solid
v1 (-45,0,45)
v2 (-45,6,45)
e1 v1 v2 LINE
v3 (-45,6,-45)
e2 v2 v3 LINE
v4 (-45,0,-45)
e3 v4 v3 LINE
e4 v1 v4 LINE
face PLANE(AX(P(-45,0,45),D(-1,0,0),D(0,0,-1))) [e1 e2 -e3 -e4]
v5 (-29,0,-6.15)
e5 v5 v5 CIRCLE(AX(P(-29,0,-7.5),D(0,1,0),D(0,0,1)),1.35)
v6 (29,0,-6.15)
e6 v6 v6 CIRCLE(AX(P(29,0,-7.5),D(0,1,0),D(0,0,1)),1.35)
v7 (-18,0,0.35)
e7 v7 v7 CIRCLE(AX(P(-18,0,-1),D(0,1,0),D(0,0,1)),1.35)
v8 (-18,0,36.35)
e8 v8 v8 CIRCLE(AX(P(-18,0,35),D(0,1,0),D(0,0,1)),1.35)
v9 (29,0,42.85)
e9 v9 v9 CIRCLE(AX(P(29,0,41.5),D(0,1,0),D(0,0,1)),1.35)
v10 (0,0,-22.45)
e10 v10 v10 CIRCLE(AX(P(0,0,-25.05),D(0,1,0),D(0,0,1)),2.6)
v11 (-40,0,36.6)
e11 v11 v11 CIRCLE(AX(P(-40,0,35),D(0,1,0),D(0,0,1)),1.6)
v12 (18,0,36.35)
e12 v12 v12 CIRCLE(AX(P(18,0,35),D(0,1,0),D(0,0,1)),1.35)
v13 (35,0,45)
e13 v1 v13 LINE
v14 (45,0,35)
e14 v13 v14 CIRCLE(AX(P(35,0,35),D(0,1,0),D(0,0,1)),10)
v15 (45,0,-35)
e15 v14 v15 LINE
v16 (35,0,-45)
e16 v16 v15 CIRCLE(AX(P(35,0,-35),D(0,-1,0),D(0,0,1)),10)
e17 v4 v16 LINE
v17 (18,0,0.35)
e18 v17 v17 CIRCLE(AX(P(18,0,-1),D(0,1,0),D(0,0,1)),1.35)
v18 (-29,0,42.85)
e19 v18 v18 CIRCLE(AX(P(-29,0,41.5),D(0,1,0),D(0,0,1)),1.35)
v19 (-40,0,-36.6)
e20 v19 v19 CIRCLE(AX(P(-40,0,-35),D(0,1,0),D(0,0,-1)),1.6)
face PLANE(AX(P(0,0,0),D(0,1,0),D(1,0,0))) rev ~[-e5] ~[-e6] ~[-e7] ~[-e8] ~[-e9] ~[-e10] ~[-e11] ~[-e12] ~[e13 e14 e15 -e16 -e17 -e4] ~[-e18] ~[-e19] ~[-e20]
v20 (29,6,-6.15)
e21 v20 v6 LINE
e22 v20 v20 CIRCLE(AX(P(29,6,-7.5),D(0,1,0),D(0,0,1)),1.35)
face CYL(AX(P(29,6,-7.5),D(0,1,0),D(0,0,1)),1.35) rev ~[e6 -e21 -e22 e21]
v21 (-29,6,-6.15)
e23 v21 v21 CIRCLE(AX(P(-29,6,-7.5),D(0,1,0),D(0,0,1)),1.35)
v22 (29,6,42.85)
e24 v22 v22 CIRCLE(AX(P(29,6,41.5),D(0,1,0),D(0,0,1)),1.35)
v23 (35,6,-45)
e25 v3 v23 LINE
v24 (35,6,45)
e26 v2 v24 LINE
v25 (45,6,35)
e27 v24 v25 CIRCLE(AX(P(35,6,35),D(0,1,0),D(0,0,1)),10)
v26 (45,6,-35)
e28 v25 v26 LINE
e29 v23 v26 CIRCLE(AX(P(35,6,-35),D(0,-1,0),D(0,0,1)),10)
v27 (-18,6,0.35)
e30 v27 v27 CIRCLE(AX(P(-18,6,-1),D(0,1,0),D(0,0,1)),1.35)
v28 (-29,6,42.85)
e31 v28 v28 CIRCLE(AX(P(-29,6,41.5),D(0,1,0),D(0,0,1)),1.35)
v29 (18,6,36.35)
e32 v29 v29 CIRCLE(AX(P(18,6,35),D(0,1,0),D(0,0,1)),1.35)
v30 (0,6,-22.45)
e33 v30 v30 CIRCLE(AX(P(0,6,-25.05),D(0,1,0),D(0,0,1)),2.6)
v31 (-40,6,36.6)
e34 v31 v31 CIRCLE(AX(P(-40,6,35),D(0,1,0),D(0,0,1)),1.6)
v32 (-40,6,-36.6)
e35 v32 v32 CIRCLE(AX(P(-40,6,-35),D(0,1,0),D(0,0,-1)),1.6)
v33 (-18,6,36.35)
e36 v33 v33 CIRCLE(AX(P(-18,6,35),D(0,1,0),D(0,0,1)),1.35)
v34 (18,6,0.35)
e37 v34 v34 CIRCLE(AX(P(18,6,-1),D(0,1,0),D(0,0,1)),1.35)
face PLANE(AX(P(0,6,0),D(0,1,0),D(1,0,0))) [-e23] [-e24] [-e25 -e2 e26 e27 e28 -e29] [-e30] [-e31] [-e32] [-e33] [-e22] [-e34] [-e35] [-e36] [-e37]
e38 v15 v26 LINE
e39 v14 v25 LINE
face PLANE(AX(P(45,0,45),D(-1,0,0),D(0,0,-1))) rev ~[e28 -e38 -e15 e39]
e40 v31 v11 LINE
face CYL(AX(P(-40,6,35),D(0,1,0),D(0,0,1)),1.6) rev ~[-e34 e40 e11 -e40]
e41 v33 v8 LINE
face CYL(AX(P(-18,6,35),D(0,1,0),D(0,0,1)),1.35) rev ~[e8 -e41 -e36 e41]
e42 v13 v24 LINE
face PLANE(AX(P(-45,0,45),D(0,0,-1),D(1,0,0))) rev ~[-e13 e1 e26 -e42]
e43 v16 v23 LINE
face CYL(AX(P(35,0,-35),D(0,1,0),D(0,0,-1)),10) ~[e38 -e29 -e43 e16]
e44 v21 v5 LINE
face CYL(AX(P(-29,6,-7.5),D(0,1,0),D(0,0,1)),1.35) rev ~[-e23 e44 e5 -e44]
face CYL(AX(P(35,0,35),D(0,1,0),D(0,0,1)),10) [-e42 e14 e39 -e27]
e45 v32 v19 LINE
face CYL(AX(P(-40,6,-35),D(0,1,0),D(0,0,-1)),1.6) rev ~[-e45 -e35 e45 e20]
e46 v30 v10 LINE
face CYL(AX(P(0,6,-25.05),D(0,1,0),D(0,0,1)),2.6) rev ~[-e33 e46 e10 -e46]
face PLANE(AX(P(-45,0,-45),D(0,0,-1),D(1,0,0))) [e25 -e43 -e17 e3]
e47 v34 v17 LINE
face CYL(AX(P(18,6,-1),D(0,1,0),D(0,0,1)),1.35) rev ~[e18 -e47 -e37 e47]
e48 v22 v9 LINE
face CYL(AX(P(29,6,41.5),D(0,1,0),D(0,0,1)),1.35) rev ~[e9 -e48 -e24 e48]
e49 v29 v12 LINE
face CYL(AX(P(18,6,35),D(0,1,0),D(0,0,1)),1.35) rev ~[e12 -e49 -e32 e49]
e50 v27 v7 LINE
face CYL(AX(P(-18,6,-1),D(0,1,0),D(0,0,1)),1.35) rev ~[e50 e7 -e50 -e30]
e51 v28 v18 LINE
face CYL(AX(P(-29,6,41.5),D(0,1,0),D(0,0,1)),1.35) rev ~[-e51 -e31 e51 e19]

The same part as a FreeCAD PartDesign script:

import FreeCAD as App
import Part
import Sketcher
Q = App.Units.Quantity


def edges_at(feature, points):
    """Names of the edges that pass closest to the given points."""
    edges = feature.Shape.Edges
    near = lambda p: min(range(len(edges)), key=lambda i: edges[i].distToShape(Part.Vertex(*p))[0])
    return sorted({f"Edge{near(p) + 1}" for p in points})


def add_polygon(sketch, points):
    """Adds a closed chain of lines whose ends are joined by coincident constraints."""
    first, n = sketch.GeometryCount, len(points)
    for a, b in zip(points, points[1:] + points[:1]):
        sketch.addGeometry(Part.LineSegment(App.Vector(*a, 0), App.Vector(*b, 0)), False)
    for i in range(n):
        sketch.addConstraint(Sketcher.Constraint("Coincident", first + i, 2, first + (i + 1) % n, 1))

doc = App.newDocument("Part")
body = doc.addObject("PartDesign::Body", "Body")

# Sketch on XZ plane
sketch1 = doc.addObject("Sketcher::SketchObject", "Sketch")
body.addObject(sketch1)
sketch1.AttachmentSupport = (doc.XZ_Plane, [""])
sketch1.MapMode = "FlatFace"
add_polygon(sketch1, [(-45, -45), (-45, 45), (45, 45), (45, -45)])  # lines 0-3
sketch1.addConstraint(Sketcher.Constraint("Vertical", 0))
sketch1.addConstraint(Sketcher.Constraint("Horizontal", 1))
sketch1.addConstraint(Sketcher.Constraint("Vertical", 2))
sketch1.addConstraint(Sketcher.Constraint("Horizontal", 3))
sketch1.addConstraint(Sketcher.Constraint("Symmetric", 0, 2, 2, 2, -1, 1))
sketch1.addConstraint(Sketcher.Constraint("Equal", 3, 0))
sketch1.addConstraint(Sketcher.Constraint("DistanceX", 1, 1, 1, 2, Q("90 mm")))
pad1 = doc.addObject("PartDesign::Pad", "Pad")
body.addObject(pad1)
pad1.Profile = sketch1
pad1.Length = 6
pad1.Reversed = True

# Sketch on XZ plane
sketch2 = doc.addObject("Sketcher::SketchObject", "Sketch001")
body.addObject(sketch2)
sketch2.AttachmentSupport = (doc.XZ_Plane, [""])
sketch2.MapMode = "FlatFace"
sketch2.AttachmentOffset = App.Placement(App.Vector(0, 0, -6), App.Rotation())
sketch2.addGeometry(Part.Circle(App.Vector(-29, -7.5, 0), App.Vector(0, 0, 1), 1.4), False)
sketch2.addGeometry(Part.Circle(App.Vector(-29, 41.5, 0), App.Vector(0, 0, 1), 1.4), False)
sketch2.addGeometry(Part.Circle(App.Vector(-18, -1, 0), App.Vector(0, 0, 1), 1.4), False)
sketch2.addGeometry(Part.Circle(App.Vector(-18, 35, 0), App.Vector(0, 0, 1), 1.4), False)
sketch2.addGeometry(Part.Circle(App.Vector(18, 35, 0), App.Vector(0, 0, 1), 1.4), False)
sketch2.addGeometry(Part.Circle(App.Vector(29, 41.5, 0), App.Vector(0, 0, 1), 1.4), False)
sketch2.addGeometry(Part.Circle(App.Vector(18, -1, 0), App.Vector(0, 0, 1), 1.4), False)
sketch2.addGeometry(Part.Circle(App.Vector(29, -7.5, 0), App.Vector(0, 0, 1), 1.4), False)
sketch2.addConstraint(Sketcher.Constraint("Equal", 0, 1))
sketch2.addConstraint(Sketcher.Constraint("Equal", 1, 2))
sketch2.addConstraint(Sketcher.Constraint("Equal", 2, 3))
sketch2.addConstraint(Sketcher.Constraint("Equal", 3, 4))
sketch2.addConstraint(Sketcher.Constraint("Equal", 4, 5))
sketch2.addConstraint(Sketcher.Constraint("Equal", 5, 6))
sketch2.addConstraint(Sketcher.Constraint("Equal", 6, 7))
sketch2.addConstraint(Sketcher.Constraint("Symmetric", 3, 3, 4, 3, -2))
sketch2.addConstraint(Sketcher.Constraint("Symmetric", 1, 3, 5, 3, -2))
sketch2.addConstraint(Sketcher.Constraint("Symmetric", 2, 3, 6, 3, -2))
sketch2.addConstraint(Sketcher.Constraint("Symmetric", 0, 3, 7, 3, -2))
sketch2.addConstraint(Sketcher.Constraint("Vertical", 0, 3, 1, 3))
sketch2.addConstraint(Sketcher.Constraint("Vertical", 2, 3, 3, 3))
sketch2.addConstraint(Sketcher.Constraint("Diameter", 0, Q("2.7 mm")))
sketch2.addConstraint(Sketcher.Constraint("DistanceX", 0, 3, -1, 1, Q("29 mm")))
sketch2.addConstraint(Sketcher.Constraint("DistanceX", 2, 3, -1, 1, Q("18 mm")))
sketch2.addConstraint(Sketcher.Constraint("DistanceY", 2, 3, -1, 1, Q("1 mm")))
sketch2.addConstraint(Sketcher.Constraint("DistanceY", -1, 1, 3, 3, Q("35 mm")))
sketch2.addConstraint(Sketcher.Constraint("DistanceY", 0, 3, 1, 3, Q("49 mm")))
sketch2.addConstraint(Sketcher.Constraint("DistanceY", 0, 3, -1, 1, Q("7.5 mm")))
pocket1 = doc.addObject("PartDesign::Pocket", "Pocket")
body.addObject(pocket1)
pocket1.Profile = sketch2
pocket1.Length = 6
pocket1.Reversed = True

# Sketch on XZ plane
sketch3 = doc.addObject("Sketcher::SketchObject", "Sketch002")
body.addObject(sketch3)
sketch3.AttachmentSupport = (doc.XZ_Plane, [""])
sketch3.MapMode = "FlatFace"
sketch3.AttachmentOffset = App.Placement(App.Vector(0, 0, -6), App.Rotation())
sketch3.addGeometry(Part.Circle(App.Vector(0, -25.1, 0), App.Vector(0, 0, 1), 2.6), False)
sketch3.addConstraint(Sketcher.Constraint("PointOnObject", 0, 3, -2))
sketch3.addConstraint(Sketcher.Constraint("Diameter", 0, Q("5.2 mm")))
sketch3.addConstraint(Sketcher.Constraint("DistanceY", 0, 3, -1, 1, Q("25.05 mm")))
pocket2 = doc.addObject("PartDesign::Pocket", "Pocket001")
body.addObject(pocket2)
pocket2.Profile = sketch3
pocket2.Length = 6
pocket2.Reversed = True

# Sketch on XZ plane
sketch4 = doc.addObject("Sketcher::SketchObject", "Sketch003")
body.addObject(sketch4)
sketch4.AttachmentSupport = (doc.XZ_Plane, [""])
sketch4.MapMode = "FlatFace"
sketch4.AttachmentOffset = App.Placement(App.Vector(0, 0, -6), App.Rotation())
sketch4.addGeometry(Part.Circle(App.Vector(-40, 35, 0), App.Vector(0, 0, 1), 1.6), False)
sketch4.addGeometry(Part.Circle(App.Vector(-40, -35, 0), App.Vector(0, 0, 1), 1.6), False)
sketch4.addConstraint(Sketcher.Constraint("Equal", 0, 1))
sketch4.addConstraint(Sketcher.Constraint("Symmetric", 0, 3, 1, 3, -1))
sketch4.addConstraint(Sketcher.Constraint("Diameter", 0, Q("3.2 mm")))
sketch4.addConstraint(Sketcher.Constraint("DistanceX", 0, 3, -1, 1, Q("40 mm")))
sketch4.addConstraint(Sketcher.Constraint("DistanceY", -1, 1, 0, 3, Q("35 mm")))
pocket3 = doc.addObject("PartDesign::Pocket", "Pocket002")
body.addObject(pocket3)
pocket3.Profile = sketch4
pocket3.Length = 6
pocket3.Reversed = True
doc.recompute()

fillet = doc.addObject("PartDesign::Fillet", "Fillet")
body.addObject(fillet)
fillet.Base = (pocket3, edges_at(pocket3, [(45, 3, 45), (45, 3, -45)]))
fillet.Radius = 10

doc.recompute()
